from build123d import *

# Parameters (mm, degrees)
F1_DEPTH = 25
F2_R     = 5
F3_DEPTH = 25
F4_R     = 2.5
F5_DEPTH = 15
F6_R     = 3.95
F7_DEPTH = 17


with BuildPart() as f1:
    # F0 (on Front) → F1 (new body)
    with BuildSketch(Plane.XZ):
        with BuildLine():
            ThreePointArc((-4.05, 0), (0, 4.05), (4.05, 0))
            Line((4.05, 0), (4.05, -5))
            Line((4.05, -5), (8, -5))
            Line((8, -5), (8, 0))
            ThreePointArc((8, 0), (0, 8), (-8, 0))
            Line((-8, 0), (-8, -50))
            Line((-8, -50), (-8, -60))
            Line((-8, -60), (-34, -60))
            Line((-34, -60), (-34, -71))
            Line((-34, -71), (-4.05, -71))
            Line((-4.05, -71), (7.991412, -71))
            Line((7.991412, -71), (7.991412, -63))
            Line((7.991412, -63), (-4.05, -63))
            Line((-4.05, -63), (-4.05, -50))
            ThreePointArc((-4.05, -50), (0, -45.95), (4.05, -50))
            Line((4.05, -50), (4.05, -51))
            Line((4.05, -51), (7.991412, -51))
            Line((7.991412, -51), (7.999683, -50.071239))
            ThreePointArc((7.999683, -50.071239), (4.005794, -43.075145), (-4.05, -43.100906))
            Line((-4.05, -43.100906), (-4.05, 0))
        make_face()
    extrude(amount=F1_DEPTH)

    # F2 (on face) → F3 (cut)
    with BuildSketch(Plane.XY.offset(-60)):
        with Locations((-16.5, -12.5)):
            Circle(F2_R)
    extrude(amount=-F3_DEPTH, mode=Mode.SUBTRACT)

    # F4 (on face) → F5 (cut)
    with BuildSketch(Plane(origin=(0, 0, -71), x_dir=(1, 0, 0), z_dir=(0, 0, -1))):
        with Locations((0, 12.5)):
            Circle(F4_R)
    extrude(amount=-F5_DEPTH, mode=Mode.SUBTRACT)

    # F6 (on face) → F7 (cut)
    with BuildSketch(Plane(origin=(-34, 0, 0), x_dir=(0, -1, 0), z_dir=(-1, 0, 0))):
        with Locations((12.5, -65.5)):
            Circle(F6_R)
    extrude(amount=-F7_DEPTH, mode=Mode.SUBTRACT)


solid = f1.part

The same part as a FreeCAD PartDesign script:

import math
import FreeCAD as App
import Part
import Sketcher

doc = App.newDocument("Part")
params = doc.addObject("Spreadsheet::Sheet", "Params")
for row, (alias, value) in enumerate([
    ("sketch1_radius", "8 mm"),
    ("sketch1_width", "26 mm"),
    ("sketch1_height", "5 mm"),
    ("sketch1_height2", "60 mm"),
    ("sketch1_height3", "11 mm"),
    ("pad1_length", "25 mm"),
    ("sketch2_diameter", "10 mm"),
    ("pocket1_length", "25 mm"),
    ("sketch3_diameter", "5 mm"),
    ("pocket2_length", "15 mm"),
    ("sketch4_diameter", "7.9 mm"),
    ("pocket3_length", "17 mm"),
], start=1):
    params.set(f"A{row}", alias)
    params.set(f"B{row}", "=" + value)
    params.setAlias(f"B{row}", alias)

body = doc.addObject("PartDesign::Body", "Body")

# Sketch on XZ plane
sketch1 = body.newObject("Sketcher::SketchObject", "Sketch")
sketch1.AttachmentSupport = (doc.getObject("XZ_Plane"), [""])
sketch1.MapMode = "FlatFace"
sketch1.addGeometry(Part.ArcOfCircle(Part.Circle(App.Vector(0, 0, 0), App.Vector(0, 0, 1), 4), math.radians(0), math.radians(180)), False)
sketch1.addGeometry(Part.LineSegment(App.Vector(4, 0, 0), App.Vector(4, -5, 0)), False)
sketch1.addGeometry(Part.LineSegment(App.Vector(4, -5, 0), App.Vector(8, -5, 0)), False)
sketch1.addGeometry(Part.LineSegment(App.Vector(8, -5, 0), App.Vector(8, 0, 0)), False)
sketch1.addGeometry(Part.ArcOfCircle(Part.Circle(App.Vector(0, 0, 0), App.Vector(0, 0, 1), 8), math.radians(0), math.radians(180)), False)
sketch1.addGeometry(Part.LineSegment(App.Vector(-8, 0, 0), App.Vector(-8, -60, 0)), False)
sketch1.addGeometry(Part.LineSegment(App.Vector(-8, -60, 0), App.Vector(-34, -60, 0)), False)
sketch1.addGeometry(Part.LineSegment(App.Vector(-34, -60, 0), App.Vector(-34, -71, 0)), False)
sketch1.addGeometry(Part.LineSegment(App.Vector(-34, -71, 0), App.Vector(8, -71, 0)), False)
sketch1.addGeometry(Part.LineSegment(App.Vector(8, -71, 0), App.Vector(8, -63, 0)), False)
sketch1.addGeometry(Part.LineSegment(App.Vector(8, -63, 0), App.Vector(-4, -63, 0)), False)
sketch1.addGeometry(Part.LineSegment(App.Vector(-4, -63, 0), App.Vector(-4, -50, 0)), False)
sketch1.addGeometry(Part.ArcOfCircle(Part.Circle(App.Vector(0, -50, 0), App.Vector(0, 0, 1), 4), math.radians(0), math.radians(180)), False)
sketch1.addGeometry(Part.LineSegment(App.Vector(4, -50, 0), App.Vector(4, -51, 0)), False)
sketch1.addGeometry(Part.LineSegment(App.Vector(4, -51, 0), App.Vector(8, -51, 0)), False)
sketch1.addGeometry(Part.LineSegment(App.Vector(8, -51, 0), App.Vector(8, -50.1, 0)), False)
sketch1.addGeometry(Part.ArcOfCircle(Part.Circle(App.Vector(0, -50, 0), App.Vector(0, 0, 1), 8), math.radians(-1), math.radians(120)), False)
sketch1.addGeometry(Part.LineSegment(App.Vector(-4, -43.1, 0), App.Vector(-4, 0, 0)), False)
sketch1.addConstraint(Sketcher.Constraint("Tangent", 0, 1, 1, 1))
sketch1.addConstraint(Sketcher.Constraint("Coincident", 1, 2, 2, 1))
sketch1.addConstraint(Sketcher.Constraint("Coincident", 2, 2, 3, 1))
sketch1.addConstraint(Sketcher.Constraint("Tangent", 3, 2, 4, 1))
sketch1.addConstraint(Sketcher.Constraint("Tangent", 4, 2, 5, 1))
sketch1.addConstraint(Sketcher.Constraint("Coincident", 5, 2, 6, 1))
sketch1.addConstraint(Sketcher.Constraint("Coincident", 6, 2, 7, 1))
sketch1.addConstraint(Sketcher.Constraint("Coincident", 7, 2, 8, 1))
sketch1.addConstraint(Sketcher.Constraint("Coincident", 8, 2, 9, 1))
sketch1.addConstraint(Sketcher.Constraint("Coincident", 9, 2, 10, 1))
sketch1.addConstraint(Sketcher.Constraint("Coincident", 10, 2, 11, 1))
sketch1.addConstraint(Sketcher.Constraint("Tangent", 11, 2, 12, 2))
sketch1.addConstraint(Sketcher.Constraint("Tangent", 12, 1, 13, 1))
sketch1.addConstraint(Sketcher.Constraint("Coincident", 13, 2, 14, 1))
sketch1.addConstraint(Sketcher.Constraint("Coincident", 14, 2, 15, 1))
sketch1.addConstraint(Sketcher.Constraint("Tangent", 15, 2, 16, 1))
sketch1.addConstraint(Sketcher.Constraint("Coincident", 16, 2, 17, 1))
sketch1.addConstraint(Sketcher.Constraint("Tangent", 17, 2, 0, 2))
sketch1.addConstraint(Sketcher.Constraint("Vertical", 1))
sketch1.addConstraint(Sketcher.Constraint("Horizontal", 2))
sketch1.addConstraint(Sketcher.Constraint("Vertical", 3))
sketch1.addConstraint(Sketcher.Constraint("Vertical", 5))
sketch1.addConstraint(Sketcher.Constraint("Horizontal", 6))
sketch1.addConstraint(Sketcher.Constraint("Vertical", 7))
sketch1.addConstraint(Sketcher.Constraint("Horizontal", 8))
sketch1.addConstraint(Sketcher.Constraint("Vertical", 9))
sketch1.addConstraint(Sketcher.Constraint("Horizontal", 10))
sketch1.addConstraint(Sketcher.Constraint("Vertical", 11))
sketch1.addConstraint(Sketcher.Constraint("Vertical", 13))
sketch1.addConstraint(Sketcher.Constraint("Horizontal", 14))
sketch1.addConstraint(Sketcher.Constraint("Vertical", 17))
sketch1.addConstraint(Sketcher.Constraint("Coincident", 0, 3, -1, 1))
sketch1.addConstraint(Sketcher.Constraint("Coincident", 4, 3, -1, 1))
sketch1.addConstraint(Sketcher.Constraint("Coincident", 16, 3, 12, 3))
sketch1.addConstraint(Sketcher.Constraint("Equal", 0, 12))
sketch1.addConstraint(Sketcher.Constraint("Equal", 4, 16))
sketch1.addConstraint(Sketcher.Constraint("PointOnObject", 12, 3, -2))
sketch1.addConstraint(Sketcher.Constraint("Vertical", 9, 2, 14, 2))
sketch1.addConstraint(Sketcher.Constraint("Radius", 4, 8.0))
sketch1.addConstraint(Sketcher.Constraint("DistanceX", 6, 2, 6, 1, 26.0))
sketch1.addConstraint(Sketcher.Constraint("DistanceY", 1, 2, 1, 1, 5.0))
sketch1.addConstraint(Sketcher.Constraint("DistanceY", 5, 2, 5, 1, 60.0))
sketch1.addConstraint(Sketcher.Constraint("DistanceY", 7, 2, 7, 1, 11.0))
sketch1.addConstraint(Sketcher.Constraint("DistanceY", 9, 1, 9, 2, 8.0))
sketch1.addConstraint(Sketcher.Constraint("DistanceY", 11, 1, 11, 2, 13.0))
sketch1.addConstraint(Sketcher.Constraint("DistanceY", 13, 2, 13, 1, 1.0))
sketch1.addConstraint(Sketcher.Constraint("Radius", 0, 4.05))
sketch1.addConstraint(Sketcher.Constraint("DistanceX", 8, 1, 8, 2, 41.991412))
sketch1.setExpression("Constraints[38]", "Params.sketch1_radius")
sketch1.setExpression("Constraints[39]", "Params.sketch1_width")
sketch1.setExpression("Constraints[40]", "Params.sketch1_height")
sketch1.setExpression("Constraints[41]", "Params.sketch1_height2")
sketch1.setExpression("Constraints[42]", "Params.sketch1_height3")
pad1 = body.newObject("PartDesign::Pad", "Pad")
pad1.Profile = sketch1
pad1.setExpression("Length", "Params.pad1_length")

# Sketch on XY plane
sketch2 = body.newObject("Sketcher::SketchObject", "Sketch001")
sketch2.AttachmentSupport = (doc.getObject("XY_Plane"), [""])
sketch2.MapMode = "FlatFace"
sketch2.AttachmentOffset = App.Placement(App.Vector(0, 0, -60), App.Rotation())
sketch2.addGeometry(Part.Circle(App.Vector(-16, -12, 0), App.Vector(0, 0, 1), 5), False)
sketch2.addConstraint(Sketcher.Constraint("Diameter", 0, 10.0))
sketch2.addConstraint(Sketcher.Constraint("DistanceX", 0, 3, -1, 1, 16.5))
sketch2.addConstraint(Sketcher.Constraint("DistanceY", 0, 3, -1, 1, 12.5))
sketch2.setExpression("Constraints[0]", "Params.sketch2_diameter")
pocket1 = body.newObject("PartDesign::Pocket", "Pocket")
pocket1.Profile = sketch2
pocket1.setExpression("Length", "Params.pocket1_length")

# Sketch on XY plane
sketch3 = body.newObject("Sketcher::SketchObject", "Sketch002")
sketch3.AttachmentSupport = (doc.getObject("XY_Plane"), [""])
sketch3.MapMode = "FlatFace"
sketch3.AttachmentOffset = App.Placement(App.Vector(0, 0, -71), App.Rotation())
sketch3.addGeometry(Part.Circle(App.Vector(0, -12.5, 0), App.Vector(0, 0, 1), 2.5), False)
sketch3.addConstraint(Sketcher.Constraint("PointOnObject", 0, 3, -2))
sketch3.addConstraint(Sketcher.Constraint("Diameter", 0, 5.0))
sketch3.addConstraint(Sketcher.Constraint("DistanceY", 0, 3, -1, 1, 12.5))
sketch3.setExpression("Constraints[1]", "Params.sketch3_diameter")
pocket2 = body.newObject("PartDesign::Pocket", "Pocket001")
pocket2.Profile = sketch3
pocket2.setExpression("Length", "Params.pocket2_length")
pocket2.Reversed = True

# Sketch on YZ plane
sketch4 = body.newObject("Sketcher::SketchObject", "Sketch003")
sketch4.AttachmentSupport = (doc.getObject("YZ_Plane"), [""])
sketch4.MapMode = "FlatFace"
sketch4.AttachmentOffset = App.Placement(App.Vector(0, 0, -34), App.Rotation())
sketch4.addGeometry(Part.Circle(App.Vector(-12.5, -65.5, 0), App.Vector(0, 0, 1), 4), False)
sketch4.addConstraint(Sketcher.Constraint("Diameter", 0, 7.9))
sketch4.addConstraint(Sketcher.Constraint("DistanceX", 0, 3, -1, 1, 12.5))
sketch4.addConstraint(Sketcher.Constraint("DistanceY", 0, 3, -1, 1, 65.5))
sketch4.setExpression("Constraints[0]", "Params.sketch4_diameter")
pocket3 = body.newObject("PartDesign::Pocket", "Pocket002")
pocket3.Profile = sketch4
pocket3.setExpression("Length", "Params.pocket3_length")
pocket3.Reversed = True

doc.recompute()
